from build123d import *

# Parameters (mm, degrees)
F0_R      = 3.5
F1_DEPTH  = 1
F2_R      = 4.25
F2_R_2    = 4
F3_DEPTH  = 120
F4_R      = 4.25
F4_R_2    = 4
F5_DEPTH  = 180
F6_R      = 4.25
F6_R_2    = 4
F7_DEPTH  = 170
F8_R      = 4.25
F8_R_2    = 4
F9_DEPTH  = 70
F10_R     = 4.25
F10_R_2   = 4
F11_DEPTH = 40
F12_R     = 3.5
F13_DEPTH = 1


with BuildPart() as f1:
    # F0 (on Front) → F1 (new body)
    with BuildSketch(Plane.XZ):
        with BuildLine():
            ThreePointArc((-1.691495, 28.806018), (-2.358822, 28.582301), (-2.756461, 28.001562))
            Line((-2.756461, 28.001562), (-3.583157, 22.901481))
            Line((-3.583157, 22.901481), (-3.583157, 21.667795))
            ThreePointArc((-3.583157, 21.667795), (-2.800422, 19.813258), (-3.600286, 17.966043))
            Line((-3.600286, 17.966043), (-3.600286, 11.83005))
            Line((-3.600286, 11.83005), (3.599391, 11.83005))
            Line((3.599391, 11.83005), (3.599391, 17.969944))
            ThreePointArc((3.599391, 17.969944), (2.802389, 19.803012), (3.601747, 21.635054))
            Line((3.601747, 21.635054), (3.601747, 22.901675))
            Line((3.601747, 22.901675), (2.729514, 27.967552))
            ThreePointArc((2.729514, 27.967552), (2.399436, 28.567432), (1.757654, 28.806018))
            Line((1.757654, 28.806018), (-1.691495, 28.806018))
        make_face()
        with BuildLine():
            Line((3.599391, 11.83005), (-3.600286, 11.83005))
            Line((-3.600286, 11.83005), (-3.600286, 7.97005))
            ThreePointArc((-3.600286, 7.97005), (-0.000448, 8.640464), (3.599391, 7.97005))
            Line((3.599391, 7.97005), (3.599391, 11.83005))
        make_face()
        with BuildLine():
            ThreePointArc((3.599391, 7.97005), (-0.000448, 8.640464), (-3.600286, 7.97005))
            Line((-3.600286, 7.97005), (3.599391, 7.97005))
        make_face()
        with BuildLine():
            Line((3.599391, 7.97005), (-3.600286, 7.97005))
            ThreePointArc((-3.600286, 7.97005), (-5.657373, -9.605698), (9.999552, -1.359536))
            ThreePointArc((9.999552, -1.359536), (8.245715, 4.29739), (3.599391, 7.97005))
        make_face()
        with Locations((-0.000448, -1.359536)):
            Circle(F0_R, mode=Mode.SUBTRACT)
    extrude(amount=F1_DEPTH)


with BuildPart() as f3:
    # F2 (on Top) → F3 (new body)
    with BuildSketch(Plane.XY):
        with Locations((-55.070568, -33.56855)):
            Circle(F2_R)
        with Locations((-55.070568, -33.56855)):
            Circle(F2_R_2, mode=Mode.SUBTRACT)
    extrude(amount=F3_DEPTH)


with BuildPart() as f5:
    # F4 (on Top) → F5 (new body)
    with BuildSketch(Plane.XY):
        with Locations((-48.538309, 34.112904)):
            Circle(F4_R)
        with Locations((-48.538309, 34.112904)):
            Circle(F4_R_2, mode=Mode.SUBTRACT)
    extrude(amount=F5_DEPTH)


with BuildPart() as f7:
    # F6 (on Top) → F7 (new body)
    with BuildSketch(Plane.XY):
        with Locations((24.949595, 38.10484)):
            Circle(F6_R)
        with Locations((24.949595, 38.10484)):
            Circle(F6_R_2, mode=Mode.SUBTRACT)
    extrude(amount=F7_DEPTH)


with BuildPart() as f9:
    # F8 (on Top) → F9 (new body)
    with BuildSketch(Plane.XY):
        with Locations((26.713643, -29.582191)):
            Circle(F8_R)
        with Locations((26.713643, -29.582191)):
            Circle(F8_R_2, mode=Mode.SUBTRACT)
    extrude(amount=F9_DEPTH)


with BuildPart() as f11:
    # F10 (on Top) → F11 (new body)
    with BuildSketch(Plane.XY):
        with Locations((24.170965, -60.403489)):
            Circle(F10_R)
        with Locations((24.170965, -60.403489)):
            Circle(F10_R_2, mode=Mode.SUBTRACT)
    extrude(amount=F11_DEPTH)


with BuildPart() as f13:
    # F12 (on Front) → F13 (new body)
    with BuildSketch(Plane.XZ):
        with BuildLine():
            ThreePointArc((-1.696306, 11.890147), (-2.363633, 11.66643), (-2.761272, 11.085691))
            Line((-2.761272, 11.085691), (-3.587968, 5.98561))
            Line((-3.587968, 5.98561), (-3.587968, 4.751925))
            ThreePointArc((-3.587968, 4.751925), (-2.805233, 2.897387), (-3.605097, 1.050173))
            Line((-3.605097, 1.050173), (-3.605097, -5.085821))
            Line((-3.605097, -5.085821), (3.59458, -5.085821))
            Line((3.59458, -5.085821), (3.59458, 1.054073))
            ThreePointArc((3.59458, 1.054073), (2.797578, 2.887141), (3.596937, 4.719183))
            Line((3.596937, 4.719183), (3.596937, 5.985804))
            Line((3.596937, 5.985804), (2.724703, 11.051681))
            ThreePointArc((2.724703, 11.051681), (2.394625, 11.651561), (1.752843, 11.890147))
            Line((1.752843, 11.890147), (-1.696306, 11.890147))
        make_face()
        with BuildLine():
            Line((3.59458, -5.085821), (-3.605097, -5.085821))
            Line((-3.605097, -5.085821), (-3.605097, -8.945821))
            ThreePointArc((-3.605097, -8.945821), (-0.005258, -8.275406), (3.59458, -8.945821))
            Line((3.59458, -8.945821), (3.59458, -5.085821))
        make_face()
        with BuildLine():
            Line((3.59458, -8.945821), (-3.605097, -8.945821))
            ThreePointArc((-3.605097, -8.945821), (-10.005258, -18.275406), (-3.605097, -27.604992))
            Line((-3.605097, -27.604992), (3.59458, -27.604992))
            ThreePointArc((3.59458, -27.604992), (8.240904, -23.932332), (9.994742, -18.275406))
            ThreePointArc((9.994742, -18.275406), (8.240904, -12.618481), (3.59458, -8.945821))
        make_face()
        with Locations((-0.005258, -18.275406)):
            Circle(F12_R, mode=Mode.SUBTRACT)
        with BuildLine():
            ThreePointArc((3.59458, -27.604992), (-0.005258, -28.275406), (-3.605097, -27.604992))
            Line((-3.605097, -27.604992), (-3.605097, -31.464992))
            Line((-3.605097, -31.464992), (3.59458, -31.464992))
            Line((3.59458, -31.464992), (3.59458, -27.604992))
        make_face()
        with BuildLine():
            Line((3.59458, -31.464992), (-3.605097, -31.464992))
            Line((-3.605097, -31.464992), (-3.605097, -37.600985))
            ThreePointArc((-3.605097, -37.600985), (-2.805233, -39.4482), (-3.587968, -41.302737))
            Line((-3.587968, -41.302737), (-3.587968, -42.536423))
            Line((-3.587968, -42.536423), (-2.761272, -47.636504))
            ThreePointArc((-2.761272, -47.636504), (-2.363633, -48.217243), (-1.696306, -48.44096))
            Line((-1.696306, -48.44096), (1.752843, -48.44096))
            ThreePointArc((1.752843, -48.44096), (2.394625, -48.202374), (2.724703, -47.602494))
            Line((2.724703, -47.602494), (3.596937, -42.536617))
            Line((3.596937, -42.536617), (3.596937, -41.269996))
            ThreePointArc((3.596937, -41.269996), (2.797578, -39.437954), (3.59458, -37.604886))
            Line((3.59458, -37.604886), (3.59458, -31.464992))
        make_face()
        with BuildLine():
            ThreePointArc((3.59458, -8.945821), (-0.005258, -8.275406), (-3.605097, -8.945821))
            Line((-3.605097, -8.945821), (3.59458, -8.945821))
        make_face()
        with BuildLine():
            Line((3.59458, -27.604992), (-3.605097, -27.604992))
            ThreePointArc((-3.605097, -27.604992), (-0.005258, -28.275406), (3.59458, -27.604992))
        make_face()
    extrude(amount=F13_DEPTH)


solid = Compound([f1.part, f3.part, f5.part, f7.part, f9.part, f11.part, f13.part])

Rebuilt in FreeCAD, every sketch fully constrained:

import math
import FreeCAD as App
import Part
import Sketcher

V = App.Vector
Q = App.Units.Quantity

doc = App.newDocument("Part")
params = doc.addObject("Spreadsheet::Sheet", "Params")
for row, (alias, value) in enumerate([
    ("sketch1_diameter", "7 mm"),
    ("sketch1_radius", "10 mm"),
    ("pad1_length", "1 mm"),
    ("sketch2_diameter", "8 mm"),
    ("sketch2_diameter2", "8.5 mm"),
    ("pad2_length", "120 mm"),
    ("sketch3_diameter", "8 mm"),
    ("sketch3_diameter2", "8.5 mm"),
    ("pad3_length", "180 mm"),
    ("sketch4_diameter", "8 mm"),
    ("sketch4_diameter2", "8.5 mm"),
    ("pad4_length", "170 mm"),
    ("sketch5_diameter", "8 mm"),
    ("sketch5_diameter2", "8.5 mm"),
    ("pad5_length", "70 mm"),
    ("sketch6_diameter", "8 mm"),
    ("sketch6_diameter2", "8.5 mm"),
    ("pad6_length", "40 mm"),
    ("sketch7_diameter", "7 mm"),
    ("sketch7_radius", "10.000001 mm"),
    ("pad7_length", "1 mm"),
], start=1):
    params.set(f"A{row}", alias)
    params.set(f"B{row}", "=" + value)
    params.setAlias(f"B{row}", alias)

body = doc.addObject("PartDesign::Body", "Body")

# Sketch on XZ plane
sketch1 = body.newObject("Sketcher::SketchObject", "Sketch")
sketch1.AttachmentSupport = (doc.getObject("XZ_Plane"), [""])
sketch1.MapMode = "FlatFace"
sketch1.addGeometry(Part.ArcOfCircle(Part.Circle(V(-1.691494, 27.69887, 0), V(0, 0, 1), 1.107148), math.radians(90.00004), math.radians(164.133435)), False)
sketch1.addGeometry(Part.LineSegment(V(-2.756461, 28.001562, 0), V(-3.583157, 22.901481, 0)), False)
sketch1.addGeometry(Part.LineSegment(V(-3.583157, 22.901481, 0), V(-3.583157, 21.667795, 0)), False)
sketch1.addGeometry(Part.ArcOfCircle(Part.Circle(V(-5.360702, 19.825105, 0), V(0, 0, 1), 2.560308), math.radians(-46.561154), math.radians(46.030912)), False)
sketch1.addGeometry(Part.LineSegment(V(-3.600286, 17.966043, 0), V(-3.600286, 7.97005, 0)), False)
sketch1.addGeometry(Part.ArcOfCircle(Part.Circle(V(-0.000448, -1.359535, 0), V(0, 0, 1), 10), math.radians(111.099202), math.radians(359.999997)), False)
sketch1.addGeometry(Part.ArcOfCircle(Part.Circle(V(-0.000446, -1.359534, 0), V(0, 0, 1), 9.999998), math.radians(-0.000011), math.radians(68.900799)), False)
sketch1.addGeometry(Part.LineSegment(V(3.599391, 7.97005, 0), V(3.599391, 17.969944, 0)), False)
sketch1.addGeometry(Part.ArcOfCircle(Part.Circle(V(5.305176, 19.801403, 0), V(0, 0, 1), 2.502788), math.radians(132.891542), math.radians(227.034797)), False)
sketch1.addGeometry(Part.LineSegment(V(3.601747, 21.635054, 0), V(3.601747, 22.901675, 0)), False)
sketch1.addGeometry(Part.LineSegment(V(3.601747, 22.901675, 0), V(2.729514, 27.967552, 0)), False)
sketch1.addGeometry(Part.ArcOfCircle(Part.Circle(V(1.757654, 27.823547, 0), V(0, 0, 1), 0.982471), math.radians(8.428475), math.radians(89.99998)), False)
sketch1.addGeometry(Part.LineSegment(V(1.757654, 28.806018, 0), V(-1.691495, 28.806018, 0)), False)
sketch1.addGeometry(Part.Circle(V(-0.000448, -1.359536, 0), V(0, 0, 1), 3.5), False)
sketch1.addConstraint(Sketcher.Constraint("Coincident", 0, 2, 1, 1))
sketch1.addConstraint(Sketcher.Constraint("Coincident", 1, 2, 2, 1))
sketch1.addConstraint(Sketcher.Constraint("Coincident", 2, 2, 3, 2))
sketch1.addConstraint(Sketcher.Constraint("Coincident", 3, 1, 4, 1))
sketch1.addConstraint(Sketcher.Constraint("Coincident", 4, 2, 5, 1))
sketch1.addConstraint(Sketcher.Constraint("Coincident", 5, 2, 6, 1))
sketch1.addConstraint(Sketcher.Constraint("Coincident", 6, 2, 7, 1))
sketch1.addConstraint(Sketcher.Constraint("Coincident", 7, 2, 8, 2))
sketch1.addConstraint(Sketcher.Constraint("Coincident", 8, 1, 9, 1))
sketch1.addConstraint(Sketcher.Constraint("Coincident", 9, 2, 10, 1))
sketch1.addConstraint(Sketcher.Constraint("Coincident", 10, 2, 11, 1))
sketch1.addConstraint(Sketcher.Constraint("Coincident", 11, 2, 12, 1))
sketch1.addConstraint(Sketcher.Constraint("Coincident", 12, 2, 0, 1))
sketch1.addConstraint(Sketcher.Constraint("Vertical", 2))
sketch1.addConstraint(Sketcher.Constraint("Vertical", 4))
sketch1.addConstraint(Sketcher.Constraint("Vertical", 7))
sketch1.addConstraint(Sketcher.Constraint("Vertical", 9))
sketch1.addConstraint(Sketcher.Constraint("Horizontal", 12))
sketch1.addConstraint(Sketcher.Constraint("Coincident", 6, 3, 5, 3))
sketch1.addConstraint(Sketcher.Constraint("Coincident", 13, 3, 5, 3))
sketch1.addConstraint(Sketcher.Constraint("Diameter", 13, Q("7 mm")))
sketch1.addConstraint(Sketcher.Constraint("Radius", 5, Q("10 mm")))
sketch1.addConstraint(Sketcher.Constraint("Radius", 11, Q("0.982471 mm")))
sketch1.addConstraint(Sketcher.Constraint("Radius", 0, Q("1.107148 mm")))
sketch1.addConstraint(Sketcher.Constraint("Radius", 3, Q("2.560308 mm")))
sketch1.addConstraint(Sketcher.Constraint("Radius", 8, Q("2.502788 mm")))
sketch1.addConstraint(Sketcher.Constraint("DistanceX", 12, 2, 12, 1, Q("3.449149 mm")))
sketch1.addConstraint(Sketcher.Constraint("DistanceY", 9, 1, 9, 2, Q("1.266621 mm")))
sketch1.addConstraint(Sketcher.Constraint("DistanceY", 8, 3, 3, 3, Q("0.023701 mm")))
sketch1.addConstraint(Sketcher.Constraint("DistanceX", 6, 3, 11, 3, Q("1.7581 mm")))
sketch1.addConstraint(Sketcher.Constraint("DistanceY", 3, 1, 7, 2, Q("0.003901 mm")))
sketch1.addConstraint(Sketcher.Constraint("Distance", 1, Q("5.166648 mm")))
sketch1.addConstraint(Sketcher.Constraint("Distance", 10, Q("5.140418 mm")))
sketch1.addConstraint(Sketcher.Constraint("DistanceY", 2, 2, 2, 1, Q("1.233686 mm")))
sketch1.addConstraint(Sketcher.Constraint("DistanceY", 4, 2, 4, 1, Q("9.995993 mm")))
sketch1.addConstraint(Sketcher.Constraint("DistanceY", 7, 1, 7, 2, Q("9.999894 mm")))
sketch1.addConstraint(Sketcher.Constraint("DistanceY", -1, 1, 0, 3, Q("27.69887 mm")))
sketch1.addConstraint(Sketcher.Constraint("DistanceX", 13, 3, -1, 1, Q("0.000448 mm")))
sketch1.addConstraint(Sketcher.Constraint("DistanceX", 0, 2, -1, 1, Q("2.756461 mm")))
sketch1.addConstraint(Sketcher.Constraint("DistanceY", -1, 1, 1, 2, Q("22.901481 mm")))
sketch1.addConstraint(Sketcher.Constraint("DistanceY", -1, 1, 4, 2, Q("7.97005 mm")))
sketch1.addConstraint(Sketcher.Constraint("DistanceX", -1, 1, 6, 2, Q("3.599391 mm")))
sketch1.addConstraint(Sketcher.Constraint("DistanceY", 5, 3, 3, 3, Q("21.18464 mm")))
sketch1.addConstraint(Sketcher.Constraint("DistanceY", 5, 2, 8, 3, Q("21.160939 mm")))
sketch1.addConstraint(Sketcher.Constraint("DistanceX", 8, 1, 8, 3, Q("1.703429 mm")))
sketch1.addConstraint(Sketcher.Constraint("DistanceX", 11, 2, 10, 2, Q("0.97186 mm")))
sketch1.setExpression("Constraints[20]", "Params.sketch1_diameter")
sketch1.setExpression("Constraints[21]", "Params.sketch1_radius")
pad1 = body.newObject("PartDesign::Pad", "Pad")
pad1.Profile = sketch1
pad1.setExpression("Length", "Params.pad1_length")
body2 = doc.addObject("PartDesign::Body", "Body001")

# Sketch on XY plane
sketch2 = body2.newObject("Sketcher::SketchObject", "Sketch001")
sketch2.AttachmentSupport = (doc.getObject("XY_Plane001"), [""])
sketch2.MapMode = "FlatFace"
sketch2.addGeometry(Part.Circle(V(-55.1, -33.6, 0), V(0, 0, 1), 4.2), False)
sketch2.addGeometry(Part.Circle(V(-55.1, -33.6, 0), V(0, 0, 1), 4), False)
sketch2.addConstraint(Sketcher.Constraint("Coincident", 1, 3, 0, 3))
sketch2.addConstraint(Sketcher.Constraint("Diameter", 1, Q("8 mm")))
sketch2.addConstraint(Sketcher.Constraint("Diameter", 0, Q("8.5 mm")))
sketch2.addConstraint(Sketcher.Constraint("DistanceX", 0, 3, -1, 1, Q("55.070568 mm")))
sketch2.addConstraint(Sketcher.Constraint("DistanceY", 0, 3, -1, 1, Q("33.56855 mm")))
sketch2.setExpression("Constraints[1]", "Params.sketch2_diameter")
sketch2.setExpression("Constraints[2]", "Params.sketch2_diameter2")
pad2 = body2.newObject("PartDesign::Pad", "Pad001")
pad2.Profile = sketch2
pad2.setExpression("Length", "Params.pad2_length")
body3 = doc.addObject("PartDesign::Body", "Body002")

# Sketch on XY plane
sketch3 = body3.newObject("Sketcher::SketchObject", "Sketch002")
sketch3.AttachmentSupport = (doc.getObject("XY_Plane002"), [""])
sketch3.MapMode = "FlatFace"
sketch3.addGeometry(Part.Circle(V(-48.5, 34.1, 0), V(0, 0, 1), 4.2), False)
sketch3.addGeometry(Part.Circle(V(-48.5, 34.1, 0), V(0, 0, 1), 4), False)
sketch3.addConstraint(Sketcher.Constraint("Coincident", 1, 3, 0, 3))
sketch3.addConstraint(Sketcher.Constraint("Diameter", 1, Q("8 mm")))
sketch3.addConstraint(Sketcher.Constraint("Diameter", 0, Q("8.5 mm")))
sketch3.addConstraint(Sketcher.Constraint("DistanceX", 0, 3, -1, 1, Q("48.538309 mm")))
sketch3.addConstraint(Sketcher.Constraint("DistanceY", -1, 1, 0, 3, Q("34.112904 mm")))
sketch3.setExpression("Constraints[1]", "Params.sketch3_diameter")
sketch3.setExpression("Constraints[2]", "Params.sketch3_diameter2")
pad3 = body3.newObject("PartDesign::Pad", "Pad002")
pad3.Profile = sketch3
pad3.setExpression("Length", "Params.pad3_length")
body4 = doc.addObject("PartDesign::Body", "Body003")

# Sketch on XY plane
sketch4 = body4.newObject("Sketcher::SketchObject", "Sketch003")
sketch4.AttachmentSupport = (doc.getObject("XY_Plane003"), [""])
sketch4.MapMode = "FlatFace"
sketch4.addGeometry(Part.Circle(V(24.9, 38.1, 0), V(0, 0, 1), 4.2), False)
sketch4.addGeometry(Part.Circle(V(24.9, 38.1, 0), V(0, 0, 1), 4), False)
sketch4.addConstraint(Sketcher.Constraint("Coincident", 1, 3, 0, 3))
sketch4.addConstraint(Sketcher.Constraint("Diameter", 1, Q("8 mm")))
sketch4.addConstraint(Sketcher.Constraint("Diameter", 0, Q("8.5 mm")))
sketch4.addConstraint(Sketcher.Constraint("DistanceY", -1, 1, 0, 3, Q("38.10484 mm")))
sketch4.addConstraint(Sketcher.Constraint("DistanceX", -1, 1, 0, 3, Q("24.949595 mm")))
sketch4.setExpression("Constraints[1]", "Params.sketch4_diameter")
sketch4.setExpression("Constraints[2]", "Params.sketch4_diameter2")
pad4 = body4.newObject("PartDesign::Pad", "Pad003")
pad4.Profile = sketch4
pad4.setExpression("Length", "Params.pad4_length")
body5 = doc.addObject("PartDesign::Body", "Body004")

# Sketch on XY plane
sketch5 = body5.newObject("Sketcher::SketchObject", "Sketch004")
sketch5.AttachmentSupport = (doc.getObject("XY_Plane004"), [""])
sketch5.MapMode = "FlatFace"
sketch5.addGeometry(Part.Circle(V(26.7, -29.6, 0), V(0, 0, 1), 4.2), False)
sketch5.addGeometry(Part.Circle(V(26.7, -29.6, 0), V(0, 0, 1), 4), False)
sketch5.addConstraint(Sketcher.Constraint("Coincident", 1, 3, 0, 3))
sketch5.addConstraint(Sketcher.Constraint("Diameter", 1, Q("8 mm")))
sketch5.addConstraint(Sketcher.Constraint("Diameter", 0, Q("8.5 mm")))
sketch5.addConstraint(Sketcher.Constraint("DistanceY", 0, 3, -1, 1, Q("29.582191 mm")))
sketch5.addConstraint(Sketcher.Constraint("DistanceX", -1, 1, 0, 3, Q("26.713643 mm")))
sketch5.setExpression("Constraints[1]", "Params.sketch5_diameter")
sketch5.setExpression("Constraints[2]", "Params.sketch5_diameter2")
pad5 = body5.newObject("PartDesign::Pad", "Pad004")
pad5.Profile = sketch5
pad5.setExpression("Length", "Params.pad5_length")
body6 = doc.addObject("PartDesign::Body", "Body005")

# Sketch on XY plane
sketch6 = body6.newObject("Sketcher::SketchObject", "Sketch005")
sketch6.AttachmentSupport = (doc.getObject("XY_Plane005"), [""])
sketch6.MapMode = "FlatFace"
sketch6.addGeometry(Part.Circle(V(24.2, -60.4, 0), V(0, 0, 1), 4.2), False)
sketch6.addGeometry(Part.Circle(V(24.2, -60.4, 0), V(0, 0, 1), 4), False)
sketch6.addConstraint(Sketcher.Constraint("Coincident", 1, 3, 0, 3))
sketch6.addConstraint(Sketcher.Constraint("Diameter", 1, Q("8 mm")))
sketch6.addConstraint(Sketcher.Constraint("Diameter", 0, Q("8.5 mm")))
sketch6.addConstraint(Sketcher.Constraint("DistanceY", 0, 3, -1, 1, Q("60.403489 mm")))
sketch6.addConstraint(Sketcher.Constraint("DistanceX", -1, 1, 0, 3, Q("24.170965 mm")))
sketch6.setExpression("Constraints[1]", "Params.sketch6_diameter")
sketch6.setExpression("Constraints[2]", "Params.sketch6_diameter2")
pad6 = body6.newObject("PartDesign::Pad", "Pad005")
pad6.Profile = sketch6
pad6.setExpression("Length", "Params.pad6_length")
body7 = doc.addObject("PartDesign::Body", "Body006")

# Sketch on XZ plane
sketch7 = body7.newObject("Sketcher::SketchObject", "Sketch006")
sketch7.AttachmentSupport = (doc.getObject("XZ_Plane006"), [""])
sketch7.MapMode = "FlatFace"
sketch7.addGeometry(Part.ArcOfCircle(Part.Circle(V(-1.7, 10.8, 0), V(0, 0, 1), 1.1), math.radians(90), math.radians(164)), False)
sketch7.addGeometry(Part.LineSegment(V(-2.8, 11.1, 0), V(-3.6, 6, 0)), False)
sketch7.addGeometry(Part.LineSegment(V(-3.6, 6, 0), V(-3.6, 4.8, 0)), False)
sketch7.addGeometry(Part.ArcOfCircle(Part.Circle(V(-5.4, 2.9, 0), V(0, 0, 1), 2.6), math.radians(-47), math.radians(46)), False)
sketch7.addGeometry(Part.LineSegment(V(-3.6, 1.1, 0), V(-3.6, -8.9, 0)), False)
sketch7.addGeometry(Part.ArcOfCircle(Part.Circle(V(0, -18.3, 0), V(0, 0, 1), 10), math.radians(111), math.radians(249)), False)
sketch7.addGeometry(Part.LineSegment(V(-3.6, -27.6, 0), V(-3.6, -37.6, 0)), False)
sketch7.addGeometry(Part.ArcOfCircle(Part.Circle(V(-5.4, -39.5, 0), V(0, 0, 1), 2.6), math.radians(-46), math.radians(47)), False)
sketch7.addGeometry(Part.LineSegment(V(-3.6, -41.3, 0), V(-3.6, -42.5, 0)), False)
sketch7.addGeometry(Part.LineSegment(V(-3.6, -42.5, 0), V(-2.8, -47.6, 0)), False)
sketch7.addGeometry(Part.ArcOfCircle(Part.Circle(V(-1.7, -47.3, 0), V(0, 0, 1), 1.1), math.radians(-164), math.radians(-90)), False)
sketch7.addGeometry(Part.LineSegment(V(-1.7, -48.4, 0), V(1.8, -48.4, 0)), False)
sketch7.addGeometry(Part.ArcOfCircle(Part.Circle(V(1.8, -47.5, 0), V(0, 0, 1), 1), math.radians(-90), math.radians(-8)), False)
sketch7.addGeometry(Part.LineSegment(V(2.7, -47.6, 0), V(3.6, -42.5, 0)), False)
sketch7.addGeometry(Part.LineSegment(V(3.6, -42.5, 0), V(3.6, -41.3, 0)), False)
sketch7.addGeometry(Part.ArcOfCircle(Part.Circle(V(5.3, -39.4, 0), V(0, 0, 1), 2.5), math.radians(133), math.radians(227)), False)
sketch7.addGeometry(Part.LineSegment(V(3.6, -37.6, 0), V(3.6, -27.6, 0)), False)
sketch7.addGeometry(Part.ArcOfCircle(Part.Circle(V(0, -18.3, 0), V(0, 0, 1), 10), math.radians(-69), math.radians(0)), False)
sketch7.addGeometry(Part.ArcOfCircle(Part.Circle(V(0, -18.3, 0), V(0, 0, 1), 10), math.radians(0), math.radians(69)), False)
sketch7.addGeometry(Part.LineSegment(V(3.6, -8.9, 0), V(3.6, 1.1, 0)), False)
sketch7.addGeometry(Part.ArcOfCircle(Part.Circle(V(5.3, 2.9, 0), V(0, 0, 1), 2.5), math.radians(133), math.radians(227)), False)
sketch7.addGeometry(Part.LineSegment(V(3.6, 4.7, 0), V(3.6, 6, 0)), False)
sketch7.addGeometry(Part.LineSegment(V(3.6, 6, 0), V(2.7, 11.1, 0)), False)
sketch7.addGeometry(Part.ArcOfCircle(Part.Circle(V(1.8, 10.9, 0), V(0, 0, 1), 1), math.radians(8), math.radians(90)), False)
sketch7.addGeometry(Part.LineSegment(V(1.8, 11.9, 0), V(-1.7, 11.9, 0)), False)
sketch7.addGeometry(Part.Circle(V(0, -18.3, 0), V(0, 0, 1), 3.5), False)
sketch7.addConstraint(Sketcher.Constraint("Coincident", 0, 2, 1, 1))
sketch7.addConstraint(Sketcher.Constraint("Coincident", 1, 2, 2, 1))
sketch7.addConstraint(Sketcher.Constraint("Coincident", 2, 2, 3, 2))
sketch7.addConstraint(Sketcher.Constraint("Coincident", 3, 1, 4, 1))
sketch7.addConstraint(Sketcher.Constraint("Coincident", 4, 2, 5, 1))
sketch7.addConstraint(Sketcher.Constraint("Coincident", 5, 2, 6, 1))
sketch7.addConstraint(Sketcher.Constraint("Coincident", 6, 2, 7, 2))
sketch7.addConstraint(Sketcher.Constraint("Coincident", 7, 1, 8, 1))
sketch7.addConstraint(Sketcher.Constraint("Coincident", 8, 2, 9, 1))
sketch7.addConstraint(Sketcher.Constraint("Coincident", 9, 2, 10, 1))
sketch7.addConstraint(Sketcher.Constraint("Tangent", 10, 2, 11, 1))
sketch7.addConstraint(Sketcher.Constraint("Tangent", 11, 2, 12, 1))
sketch7.addConstraint(Sketcher.Constraint("Coincident", 12, 2, 13, 1))
sketch7.addConstraint(Sketcher.Constraint("Coincident", 13, 2, 14, 1))
sketch7.addConstraint(Sketcher.Constraint("Coincident", 14, 2, 15, 2))
sketch7.addConstraint(Sketcher.Constraint("Coincident", 15, 1, 16, 1))
sketch7.addConstraint(Sketcher.Constraint("Coincident", 16, 2, 17, 1))
sketch7.addConstraint(Sketcher.Constraint("Tangent", 17, 2, 18, 1))
sketch7.addConstraint(Sketcher.Constraint("Coincident", 18, 2, 19, 1))
sketch7.addConstraint(Sketcher.Constraint("Coincident", 19, 2, 20, 2))
sketch7.addConstraint(Sketcher.Constraint("Coincident", 20, 1, 21, 1))
sketch7.addConstraint(Sketcher.Constraint("Coincident", 21, 2, 22, 1))
sketch7.addConstraint(Sketcher.Constraint("Coincident", 22, 2, 23, 1))
sketch7.addConstraint(Sketcher.Constraint("Tangent", 23, 2, 24, 1))
sketch7.addConstraint(Sketcher.Constraint("Tangent", 24, 2, 0, 1))
sketch7.addConstraint(Sketcher.Constraint("Vertical", 2))
sketch7.addConstraint(Sketcher.Constraint("Vertical", 4))
sketch7.addConstraint(Sketcher.Constraint("Vertical", 6))
sketch7.addConstraint(Sketcher.Constraint("Vertical", 8))
sketch7.addConstraint(Sketcher.Constraint("Horizontal", 11))
sketch7.addConstraint(Sketcher.Constraint("Vertical", 14))
sketch7.addConstraint(Sketcher.Constraint("Vertical", 16))
sketch7.addConstraint(Sketcher.Constraint("Vertical", 19))
sketch7.addConstraint(Sketcher.Constraint("Vertical", 21))
sketch7.addConstraint(Sketcher.Constraint("Horizontal", 24))
sketch7.addConstraint(Sketcher.Constraint("Coincident", 17, 3, 5, 3))
sketch7.addConstraint(Sketcher.Constraint("Coincident", 25, 3, 5, 3))
sketch7.addConstraint(Sketcher.Constraint("Equal", 3, 7))
sketch7.addConstraint(Sketcher.Constraint("Equal", 0, 10))
sketch7.addConstraint(Sketcher.Constraint("Equal", 5, 17))
sketch7.addConstraint(Sketcher.Constraint("Equal", 17, 18))
sketch7.addConstraint(Sketcher.Constraint("Equal", 15, 20))
sketch7.addConstraint(Sketcher.Constraint("Equal", 12, 23))
sketch7.addConstraint(Sketcher.Constraint("Horizontal", 5, 2, 16, 2))
sketch7.addConstraint(Sketcher.Constraint("Horizontal", 25, 3, 17, 2))
sketch7.addConstraint(Sketcher.Constraint("Horizontal", 4, 2, 18, 2))
sketch7.addConstraint(Sketcher.Constraint("Vertical", 3, 3, 7, 3))
sketch7.addConstraint(Sketcher.Constraint("Vertical", 0, 3, 10, 3))
sketch7.addConstraint(Sketcher.Constraint("Vertical", 15, 3, 20, 3))
sketch7.addConstraint(Sketcher.Constraint("Vertical", 12, 3, 23, 3))
sketch7.addConstraint(Sketcher.Constraint("Vertical", 4, 2, 5, 2))
sketch7.addConstraint(Sketcher.Constraint("Vertical", 2, 2, 7, 1))
sketch7.addConstraint(Sketcher.Constraint("Vertical", 0, 2, 9, 2))
sketch7.addConstraint(Sketcher.Constraint("Vertical", 14, 2, 20, 1))
sketch7.addConstraint(Sketcher.Constraint("Vertical", 12, 2, 22, 2))
sketch7.addConstraint(Sketcher.Constraint("Equal", 4, 6))
sketch7.addConstraint(Sketcher.Constraint("Equal", 2, 8))
sketch7.addConstraint(Sketcher.Constraint("Equal", 16, 19))
sketch7.addConstraint(Sketcher.Constraint("Equal", 14, 21))
sketch7.addConstraint(Sketcher.Constraint("Equal", 1, 9))
sketch7.addConstraint(Sketcher.Constraint("Diameter", 25, Q("7 mm")))
sketch7.addConstraint(Sketcher.Constraint("Radius", 5, Q("10.000001 mm")))
sketch7.addConstraint(Sketcher.Constraint("Radius", 12, Q("0.982471 mm")))
sketch7.addConstraint(Sketcher.Constraint("DistanceY", -1, 1, 0, 3, Q("10.782999 mm")))
sketch7.addConstraint(Sketcher.Constraint("Radius", 0, Q("1.107148 mm")))
sketch7.addConstraint(Sketcher.Constraint("Radius", 3, Q("2.560308 mm")))
sketch7.addConstraint(Sketcher.Constraint("Radius", 15, Q("2.502787 mm")))
sketch7.addConstraint(Sketcher.Constraint("DistanceX", 11, 1, 11, 2, Q("3.449149 mm")))
sketch7.addConstraint(Sketcher.Constraint("DistanceY", 14, 1, 14, 2, Q("1.266621 mm")))
sketch7.addConstraint(Sketcher.Constraint("DistanceX", 5, 3, 12, 3, Q("1.7581 mm")))
sketch7.addConstraint(Sketcher.Constraint("DistanceY", 7, 3, 15, 3, Q("0.023702 mm")))
sketch7.addConstraint(Sketcher.Constraint("DistanceY", 12, 2, 14, 2, Q("6.332498 mm")))
sketch7.addConstraint(Sketcher.Constraint("DistanceY", 15, 1, 6, 2, Q("0.003901 mm")))
sketch7.addConstraint(Sketcher.Constraint("Distance", 1, Q("5.166648 mm")))
sketch7.addConstraint(Sketcher.Constraint("Distance", 13, Q("5.140418 mm")))
sketch7.addConstraint(Sketcher.Constraint("DistanceY", 2, 2, 2, 1, Q("1.233685 mm")))
sketch7.addConstraint(Sketcher.Constraint("DistanceY", 4, 2, 4, 1, Q("9.995994 mm")))
sketch7.addConstraint(Sketcher.Constraint("DistanceY", 12, 3, -1, 1, Q("47.458489 mm")))
sketch7.addConstraint(Sketcher.Constraint("DistanceX", 17, 3, -1, 1, Q("0.005259 mm")))
sketch7.addConstraint(Sketcher.Constraint("DistanceY", -1, 1, 20, 3, Q("2.885532 mm")))
sketch7.addConstraint(Sketcher.Constraint("DistanceY", -1, 1, 0, 2, Q("11.085691 mm")))
sketch7.addConstraint(Sketcher.Constraint("DistanceX", 1, 2, -1, 1, Q("3.587968 mm")))
sketch7.setExpression("Constraints[60]", "Params.sketch7_diameter")
sketch7.setExpression("Constraints[61]", "Params.sketch7_radius")
pad7 = body7.newObject("PartDesign::Pad", "Pad006")
pad7.Profile = sketch7
pad7.setExpression("Length", "Params.pad7_length")

doc.recompute()
